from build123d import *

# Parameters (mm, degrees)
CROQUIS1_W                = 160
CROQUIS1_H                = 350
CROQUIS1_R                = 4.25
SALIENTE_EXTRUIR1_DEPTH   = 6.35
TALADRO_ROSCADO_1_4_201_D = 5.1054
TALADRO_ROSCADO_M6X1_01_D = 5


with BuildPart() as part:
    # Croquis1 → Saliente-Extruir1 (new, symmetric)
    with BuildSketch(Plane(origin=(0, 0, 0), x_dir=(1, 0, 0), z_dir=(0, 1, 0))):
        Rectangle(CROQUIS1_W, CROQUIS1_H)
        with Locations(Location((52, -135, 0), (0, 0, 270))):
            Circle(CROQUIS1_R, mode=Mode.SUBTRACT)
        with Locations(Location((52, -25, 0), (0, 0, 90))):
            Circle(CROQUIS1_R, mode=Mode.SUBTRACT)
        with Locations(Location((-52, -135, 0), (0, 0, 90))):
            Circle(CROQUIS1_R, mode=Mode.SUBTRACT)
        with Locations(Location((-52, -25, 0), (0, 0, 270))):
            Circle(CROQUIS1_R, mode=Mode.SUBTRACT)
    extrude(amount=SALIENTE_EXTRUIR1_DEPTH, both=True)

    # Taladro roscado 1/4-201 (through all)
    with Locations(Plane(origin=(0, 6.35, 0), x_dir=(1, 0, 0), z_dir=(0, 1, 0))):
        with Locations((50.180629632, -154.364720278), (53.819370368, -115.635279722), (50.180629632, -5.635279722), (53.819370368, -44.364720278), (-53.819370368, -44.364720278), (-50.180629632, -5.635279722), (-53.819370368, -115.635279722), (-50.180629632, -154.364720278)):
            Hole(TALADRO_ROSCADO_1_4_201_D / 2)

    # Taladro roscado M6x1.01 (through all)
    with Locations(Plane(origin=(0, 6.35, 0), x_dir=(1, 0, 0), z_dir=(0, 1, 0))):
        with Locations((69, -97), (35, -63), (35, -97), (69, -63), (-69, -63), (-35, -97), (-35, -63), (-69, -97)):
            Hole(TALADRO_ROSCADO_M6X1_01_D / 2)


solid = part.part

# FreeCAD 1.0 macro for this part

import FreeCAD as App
import Part
import Sketcher
from FreeCAD import Vector
Q = App.Units.Quantity


def add_polygon(sketch, points):
    """Adds a closed chain of lines whose ends are joined by coincident constraints."""
    first, n = sketch.GeometryCount, len(points)
    for a, b in zip(points, points[1:] + points[:1]):
        sketch.addGeometry(Part.LineSegment(App.Vector(*a, 0), App.Vector(*b, 0)), False)
    for i in range(n):
        sketch.addConstraint(Sketcher.Constraint("Coincident", first + i, 2, first + (i + 1) % n, 1))

doc = App.newDocument("Part")
body = doc.addObject("PartDesign::Body", "Body")

# Sketch on XZ plane
sketch1 = body.newObject("Sketcher::SketchObject", "Sketch")
sketch1.AttachmentSupport = (doc.getObject("XZ_Plane"), [""])
sketch1.MapMode = "FlatFace"
add_polygon(sketch1, [(-80, -175), (-80, 175), (80, 175), (80, -175)])  # lines 0-3
sketch1.addGeometry(Part.Circle(Vector(-52, 135, 0), Vector(0, 0, 1), 4.2), False)  # 4
sketch1.addGeometry(Part.Circle(Vector(52, 135, 0), Vector(0, 0, 1), 4.2), False)  # 5
sketch1.addGeometry(Part.Circle(Vector(-52, 25, 0), Vector(0, 0, 1), 4.2), False)  # 6
sketch1.addGeometry(Part.Circle(Vector(52, 25, 0), Vector(0, 0, 1), 4.2), False)  # 7
sketch1.addConstraint(Sketcher.Constraint("Vertical", 0))
sketch1.addConstraint(Sketcher.Constraint("Horizontal", 1))
sketch1.addConstraint(Sketcher.Constraint("Vertical", 2))
sketch1.addConstraint(Sketcher.Constraint("Horizontal", 3))
sketch1.addConstraint(Sketcher.Constraint("Equal", 4, 5))
sketch1.addConstraint(Sketcher.Constraint("Equal", 5, 6))
sketch1.addConstraint(Sketcher.Constraint("Equal", 6, 7))
sketch1.addConstraint(Sketcher.Constraint("Symmetric", 0, 2, 2, 2, -1, 1))
sketch1.addConstraint(Sketcher.Constraint("Symmetric", 4, 3, 5, 3, -2))
sketch1.addConstraint(Sketcher.Constraint("Symmetric", 6, 3, 7, 3, -2))
sketch1.addConstraint(Sketcher.Constraint("Vertical", 4, 3, 6, 3))
sketch1.addConstraint(Sketcher.Constraint("Diameter", 4, Q("8.5 mm")))
sketch1.addConstraint(Sketcher.Constraint("DistanceX", 1, 1, 1, 2, Q("160 mm")))
sketch1.addConstraint(Sketcher.Constraint("DistanceY", 0, 1, 0, 2, Q("350 mm")))
sketch1.addConstraint(Sketcher.Constraint("DistanceX", 4, 3, -1, 1, Q("52 mm")))
sketch1.addConstraint(Sketcher.Constraint("DistanceY", -1, 1, 4, 3, Q("135 mm")))
sketch1.addConstraint(Sketcher.Constraint("DistanceY", -1, 1, 6, 3, Q("25 mm")))
pad1 = body.newObject("PartDesign::Pad", "Pad")
pad1.Profile = sketch1
pad1.Length = 12.7
pad1.Midplane = True

# Sketch on XZ plane
sketch2 = body.newObject("Sketcher::SketchObject", "Sketch001")
sketch2.AttachmentSupport = (doc.getObject("XZ_Plane"), [""])
sketch2.MapMode = "FlatFace"
sketch2.AttachmentOffset = App.Placement(Vector(0, 0, -6.35), App.Rotation())
sketch2.addGeometry(Part.Circle(Vector(50.2, 154.4, 0), Vector(0, 0, 1), 2.6), False)
sketch2.addGeometry(Part.Circle(Vector(53.8, 115.6, 0), Vector(0, 0, 1), 2.6), False)
sketch2.addGeometry(Part.Circle(Vector(50.2, 5.6, 0), Vector(0, 0, 1), 2.6), False)
sketch2.addGeometry(Part.Circle(Vector(53.8, 44.4, 0), Vector(0, 0, 1), 2.6), False)
sketch2.addGeometry(Part.Circle(Vector(-53.8, 44.4, 0), Vector(0, 0, 1), 2.6), False)
sketch2.addGeometry(Part.Circle(Vector(-50.2, 5.6, 0), Vector(0, 0, 1), 2.6), False)
sketch2.addGeometry(Part.Circle(Vector(-53.8, 115.6, 0), Vector(0, 0, 1), 2.6), False)
sketch2.addGeometry(Part.Circle(Vector(-50.2, 154.4, 0), Vector(0, 0, 1), 2.6), False)
sketch2.addConstraint(Sketcher.Constraint("Equal", 0, 1))
sketch2.addConstraint(Sketcher.Constraint("Equal", 1, 2))
sketch2.addConstraint(Sketcher.Constraint("Equal", 2, 3))
sketch2.addConstraint(Sketcher.Constraint("Equal", 3, 4))
sketch2.addConstraint(Sketcher.Constraint("Equal", 4, 5))
sketch2.addConstraint(Sketcher.Constraint("Equal", 5, 6))
sketch2.addConstraint(Sketcher.Constraint("Equal", 6, 7))
sketch2.addConstraint(Sketcher.Constraint("Symmetric", 3, 3, 4, 3, -2))
sketch2.addConstraint(Sketcher.Constraint("Symmetric", 2, 3, 5, 3, -2))
sketch2.addConstraint(Sketcher.Constraint("Symmetric", 1, 3, 6, 3, -2))
sketch2.addConstraint(Sketcher.Constraint("Symmetric", 0, 3, 7, 3, -2))
sketch2.addConstraint(Sketcher.Constraint("Vertical", 0, 3, 2, 3))
sketch2.addConstraint(Sketcher.Constraint("Vertical", 1, 3, 3, 3))
sketch2.addConstraint(Sketcher.Constraint("DistanceY", 2, 3, 1, 3, Q("110 mm")))
sketch2.addConstraint(Sketcher.Constraint("DistanceY", 3, 3, 0, 3, Q("110 mm")))
sketch2.addConstraint(Sketcher.Constraint("DistanceX", 4, 3, 2, 3, Q("104 mm")))
sketch2.addConstraint(Sketcher.Constraint("Diameter", 0, Q("5.1054 mm")))
sketch2.addConstraint(Sketcher.Constraint("DistanceX", -1, 1, 0, 3, Q("50.18063 mm")))
sketch2.addConstraint(Sketcher.Constraint("DistanceY", -1, 1, 0, 3, Q("154.36472 mm")))
sketch2.addConstraint(Sketcher.Constraint("DistanceY", -1, 1, 1, 3, Q("115.63528 mm")))
doc.recompute()
hole = body.newObject("PartDesign::Hole", "Hole")
hole.Profile = sketch2
hole.ThreadType = "None"
hole.Diameter = 5.1054
hole.DepthType = "ThroughAll"
hole.Reversed = True

# Sketch on XZ plane
sketch3 = body.newObject("Sketcher::SketchObject", "Sketch002")
sketch3.AttachmentSupport = (doc.getObject("XZ_Plane"), [""])
sketch3.MapMode = "FlatFace"
sketch3.AttachmentOffset = App.Placement(Vector(0, 0, -6.35), App.Rotation())
sketch3.addGeometry(Part.Circle(Vector(69, 97, 0), Vector(0, 0, 1), 2.5), False)
sketch3.addGeometry(Part.Circle(Vector(35, 63, 0), Vector(0, 0, 1), 2.5), False)
sketch3.addGeometry(Part.Circle(Vector(35, 97, 0), Vector(0, 0, 1), 2.5), False)
sketch3.addGeometry(Part.Circle(Vector(69, 63, 0), Vector(0, 0, 1), 2.5), False)
sketch3.addGeometry(Part.Circle(Vector(-69, 63, 0), Vector(0, 0, 1), 2.5), False)
sketch3.addGeometry(Part.Circle(Vector(-35, 97, 0), Vector(0, 0, 1), 2.5), False)
sketch3.addGeometry(Part.Circle(Vector(-35, 63, 0), Vector(0, 0, 1), 2.5), False)
sketch3.addGeometry(Part.Circle(Vector(-69, 97, 0), Vector(0, 0, 1), 2.5), False)
sketch3.addConstraint(Sketcher.Constraint("Equal", 0, 1))
sketch3.addConstraint(Sketcher.Constraint("Equal", 1, 2))
sketch3.addConstraint(Sketcher.Constraint("Equal", 2, 3))
sketch3.addConstraint(Sketcher.Constraint("Equal", 3, 4))
sketch3.addConstraint(Sketcher.Constraint("Equal", 4, 5))
sketch3.addConstraint(Sketcher.Constraint("Equal", 5, 6))
sketch3.addConstraint(Sketcher.Constraint("Equal", 6, 7))
sketch3.addConstraint(Sketcher.Constraint("Symmetric", 3, 3, 4, 3, -2))
sketch3.addConstraint(Sketcher.Constraint("Symmetric", 2, 3, 5, 3, -2))
sketch3.addConstraint(Sketcher.Constraint("Symmetric", 1, 3, 6, 3, -2))
sketch3.addConstraint(Sketcher.Constraint("Symmetric", 0, 3, 7, 3, -2))
sketch3.addConstraint(Sketcher.Constraint("Horizontal", 0, 3, 2, 3))
sketch3.addConstraint(Sketcher.Constraint("Horizontal", 1, 3, 3, 3))
sketch3.addConstraint(Sketcher.Constraint("Vertical", 1, 3, 2, 3))
sketch3.addConstraint(Sketcher.Constraint("Vertical", 0, 3, 3, 3))
sketch3.addConstraint(Sketcher.Constraint("Diameter", 0, Q("5 mm")))
sketch3.addConstraint(Sketcher.Constraint("DistanceX", -1, 1, 0, 3, Q("69 mm")))
sketch3.addConstraint(Sketcher.Constraint("DistanceY", -1, 1, 0, 3, Q("97 mm")))
sketch3.addConstraint(Sketcher.Constraint("DistanceX", -1, 1, 1, 3, Q("35 mm")))
sketch3.addConstraint(Sketcher.Constraint("DistanceY", -1, 1, 1, 3, Q("63 mm")))
doc.recompute()
hole2 = body.newObject("PartDesign::Hole", "Hole001")
hole2.Profile = sketch3
hole2.ThreadType = "None"
hole2.Diameter = 5
hole2.DepthType = "ThroughAll"
hole2.Reversed = True

doc.recompute()
